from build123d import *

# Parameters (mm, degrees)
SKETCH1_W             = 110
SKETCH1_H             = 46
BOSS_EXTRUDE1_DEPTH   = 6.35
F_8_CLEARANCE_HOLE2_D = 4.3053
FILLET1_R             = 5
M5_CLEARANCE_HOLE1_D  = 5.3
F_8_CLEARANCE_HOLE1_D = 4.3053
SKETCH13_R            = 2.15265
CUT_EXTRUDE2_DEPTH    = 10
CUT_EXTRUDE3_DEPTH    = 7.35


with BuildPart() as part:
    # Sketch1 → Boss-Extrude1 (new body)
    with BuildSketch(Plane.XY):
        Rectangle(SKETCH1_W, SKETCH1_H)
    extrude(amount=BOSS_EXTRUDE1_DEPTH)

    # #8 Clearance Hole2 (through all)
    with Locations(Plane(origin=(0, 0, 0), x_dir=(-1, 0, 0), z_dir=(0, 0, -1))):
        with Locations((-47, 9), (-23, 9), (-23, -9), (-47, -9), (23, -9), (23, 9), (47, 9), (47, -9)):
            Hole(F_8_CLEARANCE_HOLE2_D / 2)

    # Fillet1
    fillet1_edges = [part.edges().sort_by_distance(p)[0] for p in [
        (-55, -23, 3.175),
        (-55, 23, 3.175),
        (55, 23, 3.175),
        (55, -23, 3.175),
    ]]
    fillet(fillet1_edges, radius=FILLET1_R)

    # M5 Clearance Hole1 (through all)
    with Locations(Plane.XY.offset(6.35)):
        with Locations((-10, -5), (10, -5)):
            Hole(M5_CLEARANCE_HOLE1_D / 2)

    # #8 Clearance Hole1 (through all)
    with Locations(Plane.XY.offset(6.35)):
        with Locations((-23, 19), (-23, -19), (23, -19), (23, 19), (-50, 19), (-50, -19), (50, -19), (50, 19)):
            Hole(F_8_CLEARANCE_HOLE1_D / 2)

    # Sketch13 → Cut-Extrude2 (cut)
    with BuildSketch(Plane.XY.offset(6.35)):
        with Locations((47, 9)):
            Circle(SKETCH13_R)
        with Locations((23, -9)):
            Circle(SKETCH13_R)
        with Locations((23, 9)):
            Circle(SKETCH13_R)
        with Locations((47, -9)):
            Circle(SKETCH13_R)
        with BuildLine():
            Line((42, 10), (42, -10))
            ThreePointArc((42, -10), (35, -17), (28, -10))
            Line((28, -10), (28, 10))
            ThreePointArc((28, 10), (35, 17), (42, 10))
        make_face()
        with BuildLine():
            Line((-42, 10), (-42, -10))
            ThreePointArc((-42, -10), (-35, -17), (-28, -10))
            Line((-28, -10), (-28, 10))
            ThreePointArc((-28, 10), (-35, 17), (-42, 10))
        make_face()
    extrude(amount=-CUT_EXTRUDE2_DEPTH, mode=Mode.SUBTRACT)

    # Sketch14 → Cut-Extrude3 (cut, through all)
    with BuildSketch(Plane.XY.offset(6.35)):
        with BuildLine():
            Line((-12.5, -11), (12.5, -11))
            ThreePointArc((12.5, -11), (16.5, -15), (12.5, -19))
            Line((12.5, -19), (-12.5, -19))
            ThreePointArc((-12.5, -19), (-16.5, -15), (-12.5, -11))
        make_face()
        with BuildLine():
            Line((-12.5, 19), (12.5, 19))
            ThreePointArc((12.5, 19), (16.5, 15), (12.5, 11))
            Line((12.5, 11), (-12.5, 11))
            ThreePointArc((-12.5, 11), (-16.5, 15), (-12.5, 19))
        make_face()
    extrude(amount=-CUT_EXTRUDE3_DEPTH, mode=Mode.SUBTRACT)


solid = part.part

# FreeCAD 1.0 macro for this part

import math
import FreeCAD as App
import Part
import Sketcher
Q = App.Units.Quantity


def edges_at(feature, points):
    """Names of the edges that pass closest to the given points."""
    edges = feature.Shape.Edges
    near = lambda p: min(range(len(edges)), key=lambda i: edges[i].distToShape(Part.Vertex(*p))[0])
    return sorted({f"Edge{near(p) + 1}" for p in points})

doc = App.newDocument("Part")
body = doc.addObject("PartDesign::Body", "Body")

# Sketch on XY plane
sketch1 = body.newObject("Sketcher::SketchObject", "Sketch")
sketch1.AttachmentSupport = (doc.getObject("XY_Plane"), [""])
sketch1.MapMode = "FlatFace"
sketch1.addGeometry([
    Part.LineSegment(App.Vector(-55, 23, 0), App.Vector(-55, -23, 0)),
    Part.LineSegment(App.Vector(-55, -23, 0), App.Vector(55, -23, 0)),
    Part.LineSegment(App.Vector(55, -23, 0), App.Vector(55, 23, 0)),
    Part.LineSegment(App.Vector(55, 23, 0), App.Vector(-55, 23, 0)),
], False)
sketch1.addConstraint([
    Sketcher.Constraint("Coincident", 0, 2, 1, 1),
    Sketcher.Constraint("Coincident", 1, 2, 2, 1),
    Sketcher.Constraint("Coincident", 2, 2, 3, 1),
    Sketcher.Constraint("Coincident", 3, 2, 0, 1),
    Sketcher.Constraint("Vertical", 0),
    Sketcher.Constraint("Horizontal", 1),
    Sketcher.Constraint("Vertical", 2),
    Sketcher.Constraint("Horizontal", 3),
    Sketcher.Constraint("Symmetric", 0, 2, 2, 2, -1, 1),
    Sketcher.Constraint("DistanceX", 1, 1, 1, 2, Q("110 mm")),
    Sketcher.Constraint("DistanceY", 0, 2, 0, 1, Q("46 mm")),
])
pad1 = body.newObject("PartDesign::Pad", "Pad")
pad1.Profile = sketch1
pad1.Length = 6.35

# Sketch on XY plane
sketch2 = body.newObject("Sketcher::SketchObject", "Sketch001")
sketch2.AttachmentSupport = (doc.getObject("XY_Plane"), [""])
sketch2.MapMode = "FlatFace"
sketch2.addGeometry([
    Part.Circle(App.Vector(47, 9, 0), App.Vector(0, 0, 1), 2.15265),  # 0
    Part.Circle(App.Vector(23, 9, 0), App.Vector(0, 0, 1), 2.15265),  # 1
    Part.Circle(App.Vector(23, -9, 0), App.Vector(0, 0, 1), 2.15265),  # 2
    Part.Circle(App.Vector(47, -9, 0), App.Vector(0, 0, 1), 2.15265),  # 3
    Part.Circle(App.Vector(-23, -9, 0), App.Vector(0, 0, 1), 2.15265),  # 4
    Part.Circle(App.Vector(-23, 9, 0), App.Vector(0, 0, 1), 2.15265),  # 5
    Part.Circle(App.Vector(-47, 9, 0), App.Vector(0, 0, 1), 2.15265),  # 6
    Part.Circle(App.Vector(-47, -9, 0), App.Vector(0, 0, 1), 2.15265),  # 7
], False)
sketch2.addConstraint([
    Sketcher.Constraint("Equal", 0, 1),
    Sketcher.Constraint("Equal", 1, 2),
    Sketcher.Constraint("Equal", 2, 3),
    Sketcher.Constraint("Equal", 3, 4),
    Sketcher.Constraint("Equal", 4, 5),
    Sketcher.Constraint("Equal", 5, 6),
    Sketcher.Constraint("Equal", 6, 7),
    Sketcher.Constraint("Symmetric", 1, 3, 4, 3, -1, 1),
    Sketcher.Constraint("Symmetric", 2, 3, 5, 3, -1, 1),
    Sketcher.Constraint("Symmetric", 3, 3, 6, 3, -1, 1),
    Sketcher.Constraint("Symmetric", 0, 3, 7, 3, -1, 1),
    Sketcher.Constraint("Symmetric", 2, 3, 4, 3, -2),
    Sketcher.Constraint("Symmetric", 0, 3, 6, 3, -2),
    Sketcher.Constraint("Horizontal", 0, 3, 1, 3),
    Sketcher.Constraint("DistanceX", -1, 1, 0, 3, Q("47 mm")),
    Sketcher.Constraint("DistanceY", -1, 1, 0, 3, Q("9 mm")),
    Sketcher.Constraint("DistanceX", -1, 1, 1, 3, Q("23 mm")),
    Sketcher.Constraint("Diameter", 0, Q("4.3053 mm")),
])
doc.recompute()
hole = body.newObject("PartDesign::Hole", "Hole")
hole.Profile = sketch2
hole.ThreadType = "None"
hole.Diameter = 4.3053
hole.DepthType = "ThroughAll"
hole.Reversed = True
doc.recompute()

fillet = body.newObject("PartDesign::Fillet", "Fillet")
fillet.Base = (hole, edges_at(hole, [
    (-55, -23, 3.175),
    (-55, 23, 3.175),
    (55, 23, 3.175),
    (55, -23, 3.175),
]))
fillet.Radius = 5

# Sketch on XY plane
sketch3 = body.newObject("Sketcher::SketchObject", "Sketch002")
sketch3.AttachmentSupport = (doc.getObject("XY_Plane"), [""])
sketch3.MapMode = "FlatFace"
sketch3.AttachmentOffset = App.Placement(App.Vector(0, 0, 6.35), App.Rotation())
sketch3.addGeometry([
    Part.Circle(App.Vector(-10, -5, 0), App.Vector(0, 0, 1), 2.65),
    Part.Circle(App.Vector(10, -5, 0), App.Vector(0, 0, 1), 2.65),
], False)
sketch3.addConstraint([
    Sketcher.Constraint("Equal", 0, 1),
    Sketcher.Constraint("Symmetric", 0, 3, 1, 3, -2),
    Sketcher.Constraint("Diameter", 0, Q("5.3 mm")),
    Sketcher.Constraint("DistanceX", 0, 3, -1, 1, Q("10 mm")),
    Sketcher.Constraint("DistanceY", 0, 3, -1, 1, Q("5 mm")),
])
doc.recompute()
hole2 = body.newObject("PartDesign::Hole", "Hole001")
hole2.Profile = sketch3
hole2.ThreadType = "None"
hole2.Diameter = 5.3
hole2.DepthType = "ThroughAll"

# Sketch on XY plane
sketch4 = body.newObject("Sketcher::SketchObject", "Sketch003")
sketch4.AttachmentSupport = (doc.getObject("XY_Plane"), [""])
sketch4.MapMode = "FlatFace"
sketch4.AttachmentOffset = App.Placement(App.Vector(0, 0, 6.35), App.Rotation())
sketch4.addGeometry([
    Part.Circle(App.Vector(-23, 19, 0), App.Vector(0, 0, 1), 2.15265),  # 0
    Part.Circle(App.Vector(-23, -19, 0), App.Vector(0, 0, 1), 2.15265),  # 1
    Part.Circle(App.Vector(23, -19, 0), App.Vector(0, 0, 1), 2.15265),  # 2
    Part.Circle(App.Vector(23, 19, 0), App.Vector(0, 0, 1), 2.15265),  # 3
    Part.Circle(App.Vector(-50, 19, 0), App.Vector(0, 0, 1), 2.15265),  # 4
    Part.Circle(App.Vector(-50, -19, 0), App.Vector(0, 0, 1), 2.15265),  # 5
    Part.Circle(App.Vector(50, -19, 0), App.Vector(0, 0, 1), 2.15265),  # 6
    Part.Circle(App.Vector(50, 19, 0), App.Vector(0, 0, 1), 2.15265),  # 7
], False)
sketch4.addConstraint([
    Sketcher.Constraint("Equal", 0, 1),
    Sketcher.Constraint("Equal", 1, 2),
    Sketcher.Constraint("Equal", 2, 3),
    Sketcher.Constraint("Equal", 3, 4),
    Sketcher.Constraint("Equal", 4, 5),
    Sketcher.Constraint("Equal", 5, 6),
    Sketcher.Constraint("Equal", 6, 7),
    Sketcher.Constraint("Symmetric", 0, 3, 2, 3, -1, 1),
    Sketcher.Constraint("Symmetric", 1, 3, 3, 3, -1, 1),
    Sketcher.Constraint("Symmetric", 4, 3, 6, 3, -1, 1),
    Sketcher.Constraint("Symmetric", 5, 3, 7, 3, -1, 1),
    Sketcher.Constraint("Symmetric", 1, 3, 2, 3, -2),
    Sketcher.Constraint("Symmetric", 5, 3, 6, 3, -2),
    Sketcher.Constraint("Horizontal", 3, 3, 4, 3),
    Sketcher.Constraint("DistanceX", 0, 3, -1, 1, Q("23 mm")),
    Sketcher.Constraint("DistanceY", -1, 1, 0, 3, Q("19 mm")),
    Sketcher.Constraint("DistanceX", 4, 3, -1, 1, Q("50 mm")),
    Sketcher.Constraint("Diameter", 0, Q("4.3053 mm")),
])
doc.recompute()
hole3 = body.newObject("PartDesign::Hole", "Hole002")
hole3.Profile = sketch4
hole3.ThreadType = "None"
hole3.Diameter = 4.3053
hole3.DepthType = "ThroughAll"

# Sketch on XY plane
sketch5 = body.newObject("Sketcher::SketchObject", "Sketch004")
sketch5.AttachmentSupport = (doc.getObject("XY_Plane"), [""])
sketch5.MapMode = "FlatFace"
sketch5.AttachmentOffset = App.Placement(App.Vector(0, 0, 6.35), App.Rotation())
sketch5.addGeometry([
    Part.Circle(App.Vector(47, 9, 0), App.Vector(0, 0, 1), 2.15265),  # 0
    Part.Circle(App.Vector(23, -9, 0), App.Vector(0, 0, 1), 2.15265),  # 1
    Part.Circle(App.Vector(23, 9, 0), App.Vector(0, 0, 1), 2.15265),  # 2
    Part.Circle(App.Vector(47, -9, 0), App.Vector(0, 0, 1), 2.15265),  # 3
    Part.LineSegment(App.Vector(42, -10, 0), App.Vector(42, 10, 0)),  # 4
    Part.ArcOfCircle(Part.Circle(App.Vector(35, 10, 0), App.Vector(0, 0, 1), 7), math.radians(0), math.radians(180)),  # 5
    Part.LineSegment(App.Vector(28, 10, 0), App.Vector(28, -10, 0)),  # 6
    Part.ArcOfCircle(Part.Circle(App.Vector(35, -10, 0), App.Vector(0, 0, 1), 7), math.radians(180), math.radians(360)),  # 7
    Part.LineSegment(App.Vector(-42, 10, 0), App.Vector(-42, -10, 0)),  # 8
    Part.ArcOfCircle(Part.Circle(App.Vector(-35, -10, 0), App.Vector(0, 0, 1), 7), math.radians(180), math.radians(360)),  # 9
    Part.LineSegment(App.Vector(-28, -10, 0), App.Vector(-28, 10, 0)),  # 10
    Part.ArcOfCircle(Part.Circle(App.Vector(-35, 10, 0), App.Vector(0, 0, 1), 7), math.radians(0), math.radians(180)),  # 11
], False)
sketch5.addConstraint([
    Sketcher.Constraint("Tangent", 4, 2, 5, 1),
    Sketcher.Constraint("Tangent", 5, 2, 6, 1),
    Sketcher.Constraint("Tangent", 6, 2, 7, 1),
    Sketcher.Constraint("Tangent", 7, 2, 4, 1),
    Sketcher.Constraint("Tangent", 8, 2, 9, 1),
    Sketcher.Constraint("Tangent", 9, 2, 10, 1),
    Sketcher.Constraint("Tangent", 10, 2, 11, 1),
    Sketcher.Constraint("Tangent", 11, 2, 8, 1),
    Sketcher.Constraint("Vertical", 4),
    Sketcher.Constraint("Vertical", 6),
    Sketcher.Constraint("Vertical", 8),
    Sketcher.Constraint("Vertical", 10),
    Sketcher.Constraint("Equal", 0, 1),
    Sketcher.Constraint("Equal", 1, 2),
    Sketcher.Constraint("Equal", 2, 3),
    Sketcher.Constraint("Equal", 7, 9),
    Sketcher.Constraint("Symmetric", 5, 3, 9, 3, -1, 1),
    Sketcher.Constraint("Symmetric", 1, 3, 2, 3, -1),
    Sketcher.Constraint("Symmetric", 0, 3, 3, 3, -1),
    Sketcher.Constraint("Horizontal", 0, 3, 2, 3),
    Sketcher.Constraint("Horizontal", 7, 3, 9, 3),
    Sketcher.Constraint("Horizontal", 5, 3, 11, 3),
    Sketcher.Constraint("Radius", 5, Q("7 mm")),
    Sketcher.Constraint("DistanceY", 4, 1, 4, 2, Q("20 mm")),
    Sketcher.Constraint("DistanceX", -1, 1, 0, 3, Q("47 mm")),
    Sketcher.Constraint("DistanceY", -1, 1, 0, 3, Q("9 mm")),
    Sketcher.Constraint("DistanceX", -1, 1, 1, 3, Q("23 mm")),
    Sketcher.Constraint("DistanceX", -1, 1, 5, 3, Q("35 mm")),
    Sketcher.Constraint("Diameter", 0, Q("4.3053 mm")),
])
pocket1 = body.newObject("PartDesign::Pocket", "Pocket")
pocket1.Profile = sketch5
pocket1.Length = 10

# Sketch on XY plane
sketch6 = body.newObject("Sketcher::SketchObject", "Sketch005")
sketch6.AttachmentSupport = (doc.getObject("XY_Plane"), [""])
sketch6.MapMode = "FlatFace"
sketch6.AttachmentOffset = App.Placement(App.Vector(0, 0, 6.35), App.Rotation())
sketch6.addGeometry([
    Part.LineSegment(App.Vector(12.5, -11, 0), App.Vector(-12.5, -11, 0)),  # 0
    Part.ArcOfCircle(Part.Circle(App.Vector(-12.5, -15, 0), App.Vector(0, 0, 1), 4), math.radians(90), math.radians(270)),  # 1
    Part.LineSegment(App.Vector(-12.5, -19, 0), App.Vector(12.5, -19, 0)),  # 2
    Part.ArcOfCircle(Part.Circle(App.Vector(12.5, -15, 0), App.Vector(0, 0, 1), 4), math.radians(-90), math.radians(90)),  # 3
    Part.LineSegment(App.Vector(12.5, 19, 0), App.Vector(-12.5, 19, 0)),  # 4
    Part.ArcOfCircle(Part.Circle(App.Vector(-12.5, 15, 0), App.Vector(0, 0, 1), 4), math.radians(90), math.radians(270)),  # 5
    Part.LineSegment(App.Vector(-12.5, 11, 0), App.Vector(12.5, 11, 0)),  # 6
    Part.ArcOfCircle(Part.Circle(App.Vector(12.5, 15, 0), App.Vector(0, 0, 1), 4), math.radians(-90), math.radians(90)),  # 7
], False)
sketch6.addConstraint([
    Sketcher.Constraint("Tangent", 0, 2, 1, 1),
    Sketcher.Constraint("Tangent", 1, 2, 2, 1),
    Sketcher.Constraint("Tangent", 2, 2, 3, 1),
    Sketcher.Constraint("Tangent", 3, 2, 0, 1),
    Sketcher.Constraint("Tangent", 4, 2, 5, 1),
    Sketcher.Constraint("Tangent", 5, 2, 6, 1),
    Sketcher.Constraint("Tangent", 6, 2, 7, 1),
    Sketcher.Constraint("Tangent", 7, 2, 4, 1),
    Sketcher.Constraint("Horizontal", 0),
    Sketcher.Constraint("Horizontal", 2),
    Sketcher.Constraint("Horizontal", 4),
    Sketcher.Constraint("Horizontal", 6),
    Sketcher.Constraint("Equal", 3, 5),
    Sketcher.Constraint("Symmetric", 3, 3, 5, 3, -1, 1),
    Sketcher.Constraint("Vertical", 1, 3, 5, 3),
    Sketcher.Constraint("Vertical", 3, 3, 7, 3),
    Sketcher.Constraint("Radius", 1, Q("4 mm")),
    Sketcher.Constraint("DistanceX", 0, 2, 0, 1, Q("25 mm")),
    Sketcher.Constraint("DistanceY", 1, 3, -1, 1, Q("15 mm")),
])
pocket2 = body.newObject("PartDesign::Pocket", "Pocket001")
pocket2.Profile = sketch6
pocket2.Type = "ThroughAll"

doc.recompute()
